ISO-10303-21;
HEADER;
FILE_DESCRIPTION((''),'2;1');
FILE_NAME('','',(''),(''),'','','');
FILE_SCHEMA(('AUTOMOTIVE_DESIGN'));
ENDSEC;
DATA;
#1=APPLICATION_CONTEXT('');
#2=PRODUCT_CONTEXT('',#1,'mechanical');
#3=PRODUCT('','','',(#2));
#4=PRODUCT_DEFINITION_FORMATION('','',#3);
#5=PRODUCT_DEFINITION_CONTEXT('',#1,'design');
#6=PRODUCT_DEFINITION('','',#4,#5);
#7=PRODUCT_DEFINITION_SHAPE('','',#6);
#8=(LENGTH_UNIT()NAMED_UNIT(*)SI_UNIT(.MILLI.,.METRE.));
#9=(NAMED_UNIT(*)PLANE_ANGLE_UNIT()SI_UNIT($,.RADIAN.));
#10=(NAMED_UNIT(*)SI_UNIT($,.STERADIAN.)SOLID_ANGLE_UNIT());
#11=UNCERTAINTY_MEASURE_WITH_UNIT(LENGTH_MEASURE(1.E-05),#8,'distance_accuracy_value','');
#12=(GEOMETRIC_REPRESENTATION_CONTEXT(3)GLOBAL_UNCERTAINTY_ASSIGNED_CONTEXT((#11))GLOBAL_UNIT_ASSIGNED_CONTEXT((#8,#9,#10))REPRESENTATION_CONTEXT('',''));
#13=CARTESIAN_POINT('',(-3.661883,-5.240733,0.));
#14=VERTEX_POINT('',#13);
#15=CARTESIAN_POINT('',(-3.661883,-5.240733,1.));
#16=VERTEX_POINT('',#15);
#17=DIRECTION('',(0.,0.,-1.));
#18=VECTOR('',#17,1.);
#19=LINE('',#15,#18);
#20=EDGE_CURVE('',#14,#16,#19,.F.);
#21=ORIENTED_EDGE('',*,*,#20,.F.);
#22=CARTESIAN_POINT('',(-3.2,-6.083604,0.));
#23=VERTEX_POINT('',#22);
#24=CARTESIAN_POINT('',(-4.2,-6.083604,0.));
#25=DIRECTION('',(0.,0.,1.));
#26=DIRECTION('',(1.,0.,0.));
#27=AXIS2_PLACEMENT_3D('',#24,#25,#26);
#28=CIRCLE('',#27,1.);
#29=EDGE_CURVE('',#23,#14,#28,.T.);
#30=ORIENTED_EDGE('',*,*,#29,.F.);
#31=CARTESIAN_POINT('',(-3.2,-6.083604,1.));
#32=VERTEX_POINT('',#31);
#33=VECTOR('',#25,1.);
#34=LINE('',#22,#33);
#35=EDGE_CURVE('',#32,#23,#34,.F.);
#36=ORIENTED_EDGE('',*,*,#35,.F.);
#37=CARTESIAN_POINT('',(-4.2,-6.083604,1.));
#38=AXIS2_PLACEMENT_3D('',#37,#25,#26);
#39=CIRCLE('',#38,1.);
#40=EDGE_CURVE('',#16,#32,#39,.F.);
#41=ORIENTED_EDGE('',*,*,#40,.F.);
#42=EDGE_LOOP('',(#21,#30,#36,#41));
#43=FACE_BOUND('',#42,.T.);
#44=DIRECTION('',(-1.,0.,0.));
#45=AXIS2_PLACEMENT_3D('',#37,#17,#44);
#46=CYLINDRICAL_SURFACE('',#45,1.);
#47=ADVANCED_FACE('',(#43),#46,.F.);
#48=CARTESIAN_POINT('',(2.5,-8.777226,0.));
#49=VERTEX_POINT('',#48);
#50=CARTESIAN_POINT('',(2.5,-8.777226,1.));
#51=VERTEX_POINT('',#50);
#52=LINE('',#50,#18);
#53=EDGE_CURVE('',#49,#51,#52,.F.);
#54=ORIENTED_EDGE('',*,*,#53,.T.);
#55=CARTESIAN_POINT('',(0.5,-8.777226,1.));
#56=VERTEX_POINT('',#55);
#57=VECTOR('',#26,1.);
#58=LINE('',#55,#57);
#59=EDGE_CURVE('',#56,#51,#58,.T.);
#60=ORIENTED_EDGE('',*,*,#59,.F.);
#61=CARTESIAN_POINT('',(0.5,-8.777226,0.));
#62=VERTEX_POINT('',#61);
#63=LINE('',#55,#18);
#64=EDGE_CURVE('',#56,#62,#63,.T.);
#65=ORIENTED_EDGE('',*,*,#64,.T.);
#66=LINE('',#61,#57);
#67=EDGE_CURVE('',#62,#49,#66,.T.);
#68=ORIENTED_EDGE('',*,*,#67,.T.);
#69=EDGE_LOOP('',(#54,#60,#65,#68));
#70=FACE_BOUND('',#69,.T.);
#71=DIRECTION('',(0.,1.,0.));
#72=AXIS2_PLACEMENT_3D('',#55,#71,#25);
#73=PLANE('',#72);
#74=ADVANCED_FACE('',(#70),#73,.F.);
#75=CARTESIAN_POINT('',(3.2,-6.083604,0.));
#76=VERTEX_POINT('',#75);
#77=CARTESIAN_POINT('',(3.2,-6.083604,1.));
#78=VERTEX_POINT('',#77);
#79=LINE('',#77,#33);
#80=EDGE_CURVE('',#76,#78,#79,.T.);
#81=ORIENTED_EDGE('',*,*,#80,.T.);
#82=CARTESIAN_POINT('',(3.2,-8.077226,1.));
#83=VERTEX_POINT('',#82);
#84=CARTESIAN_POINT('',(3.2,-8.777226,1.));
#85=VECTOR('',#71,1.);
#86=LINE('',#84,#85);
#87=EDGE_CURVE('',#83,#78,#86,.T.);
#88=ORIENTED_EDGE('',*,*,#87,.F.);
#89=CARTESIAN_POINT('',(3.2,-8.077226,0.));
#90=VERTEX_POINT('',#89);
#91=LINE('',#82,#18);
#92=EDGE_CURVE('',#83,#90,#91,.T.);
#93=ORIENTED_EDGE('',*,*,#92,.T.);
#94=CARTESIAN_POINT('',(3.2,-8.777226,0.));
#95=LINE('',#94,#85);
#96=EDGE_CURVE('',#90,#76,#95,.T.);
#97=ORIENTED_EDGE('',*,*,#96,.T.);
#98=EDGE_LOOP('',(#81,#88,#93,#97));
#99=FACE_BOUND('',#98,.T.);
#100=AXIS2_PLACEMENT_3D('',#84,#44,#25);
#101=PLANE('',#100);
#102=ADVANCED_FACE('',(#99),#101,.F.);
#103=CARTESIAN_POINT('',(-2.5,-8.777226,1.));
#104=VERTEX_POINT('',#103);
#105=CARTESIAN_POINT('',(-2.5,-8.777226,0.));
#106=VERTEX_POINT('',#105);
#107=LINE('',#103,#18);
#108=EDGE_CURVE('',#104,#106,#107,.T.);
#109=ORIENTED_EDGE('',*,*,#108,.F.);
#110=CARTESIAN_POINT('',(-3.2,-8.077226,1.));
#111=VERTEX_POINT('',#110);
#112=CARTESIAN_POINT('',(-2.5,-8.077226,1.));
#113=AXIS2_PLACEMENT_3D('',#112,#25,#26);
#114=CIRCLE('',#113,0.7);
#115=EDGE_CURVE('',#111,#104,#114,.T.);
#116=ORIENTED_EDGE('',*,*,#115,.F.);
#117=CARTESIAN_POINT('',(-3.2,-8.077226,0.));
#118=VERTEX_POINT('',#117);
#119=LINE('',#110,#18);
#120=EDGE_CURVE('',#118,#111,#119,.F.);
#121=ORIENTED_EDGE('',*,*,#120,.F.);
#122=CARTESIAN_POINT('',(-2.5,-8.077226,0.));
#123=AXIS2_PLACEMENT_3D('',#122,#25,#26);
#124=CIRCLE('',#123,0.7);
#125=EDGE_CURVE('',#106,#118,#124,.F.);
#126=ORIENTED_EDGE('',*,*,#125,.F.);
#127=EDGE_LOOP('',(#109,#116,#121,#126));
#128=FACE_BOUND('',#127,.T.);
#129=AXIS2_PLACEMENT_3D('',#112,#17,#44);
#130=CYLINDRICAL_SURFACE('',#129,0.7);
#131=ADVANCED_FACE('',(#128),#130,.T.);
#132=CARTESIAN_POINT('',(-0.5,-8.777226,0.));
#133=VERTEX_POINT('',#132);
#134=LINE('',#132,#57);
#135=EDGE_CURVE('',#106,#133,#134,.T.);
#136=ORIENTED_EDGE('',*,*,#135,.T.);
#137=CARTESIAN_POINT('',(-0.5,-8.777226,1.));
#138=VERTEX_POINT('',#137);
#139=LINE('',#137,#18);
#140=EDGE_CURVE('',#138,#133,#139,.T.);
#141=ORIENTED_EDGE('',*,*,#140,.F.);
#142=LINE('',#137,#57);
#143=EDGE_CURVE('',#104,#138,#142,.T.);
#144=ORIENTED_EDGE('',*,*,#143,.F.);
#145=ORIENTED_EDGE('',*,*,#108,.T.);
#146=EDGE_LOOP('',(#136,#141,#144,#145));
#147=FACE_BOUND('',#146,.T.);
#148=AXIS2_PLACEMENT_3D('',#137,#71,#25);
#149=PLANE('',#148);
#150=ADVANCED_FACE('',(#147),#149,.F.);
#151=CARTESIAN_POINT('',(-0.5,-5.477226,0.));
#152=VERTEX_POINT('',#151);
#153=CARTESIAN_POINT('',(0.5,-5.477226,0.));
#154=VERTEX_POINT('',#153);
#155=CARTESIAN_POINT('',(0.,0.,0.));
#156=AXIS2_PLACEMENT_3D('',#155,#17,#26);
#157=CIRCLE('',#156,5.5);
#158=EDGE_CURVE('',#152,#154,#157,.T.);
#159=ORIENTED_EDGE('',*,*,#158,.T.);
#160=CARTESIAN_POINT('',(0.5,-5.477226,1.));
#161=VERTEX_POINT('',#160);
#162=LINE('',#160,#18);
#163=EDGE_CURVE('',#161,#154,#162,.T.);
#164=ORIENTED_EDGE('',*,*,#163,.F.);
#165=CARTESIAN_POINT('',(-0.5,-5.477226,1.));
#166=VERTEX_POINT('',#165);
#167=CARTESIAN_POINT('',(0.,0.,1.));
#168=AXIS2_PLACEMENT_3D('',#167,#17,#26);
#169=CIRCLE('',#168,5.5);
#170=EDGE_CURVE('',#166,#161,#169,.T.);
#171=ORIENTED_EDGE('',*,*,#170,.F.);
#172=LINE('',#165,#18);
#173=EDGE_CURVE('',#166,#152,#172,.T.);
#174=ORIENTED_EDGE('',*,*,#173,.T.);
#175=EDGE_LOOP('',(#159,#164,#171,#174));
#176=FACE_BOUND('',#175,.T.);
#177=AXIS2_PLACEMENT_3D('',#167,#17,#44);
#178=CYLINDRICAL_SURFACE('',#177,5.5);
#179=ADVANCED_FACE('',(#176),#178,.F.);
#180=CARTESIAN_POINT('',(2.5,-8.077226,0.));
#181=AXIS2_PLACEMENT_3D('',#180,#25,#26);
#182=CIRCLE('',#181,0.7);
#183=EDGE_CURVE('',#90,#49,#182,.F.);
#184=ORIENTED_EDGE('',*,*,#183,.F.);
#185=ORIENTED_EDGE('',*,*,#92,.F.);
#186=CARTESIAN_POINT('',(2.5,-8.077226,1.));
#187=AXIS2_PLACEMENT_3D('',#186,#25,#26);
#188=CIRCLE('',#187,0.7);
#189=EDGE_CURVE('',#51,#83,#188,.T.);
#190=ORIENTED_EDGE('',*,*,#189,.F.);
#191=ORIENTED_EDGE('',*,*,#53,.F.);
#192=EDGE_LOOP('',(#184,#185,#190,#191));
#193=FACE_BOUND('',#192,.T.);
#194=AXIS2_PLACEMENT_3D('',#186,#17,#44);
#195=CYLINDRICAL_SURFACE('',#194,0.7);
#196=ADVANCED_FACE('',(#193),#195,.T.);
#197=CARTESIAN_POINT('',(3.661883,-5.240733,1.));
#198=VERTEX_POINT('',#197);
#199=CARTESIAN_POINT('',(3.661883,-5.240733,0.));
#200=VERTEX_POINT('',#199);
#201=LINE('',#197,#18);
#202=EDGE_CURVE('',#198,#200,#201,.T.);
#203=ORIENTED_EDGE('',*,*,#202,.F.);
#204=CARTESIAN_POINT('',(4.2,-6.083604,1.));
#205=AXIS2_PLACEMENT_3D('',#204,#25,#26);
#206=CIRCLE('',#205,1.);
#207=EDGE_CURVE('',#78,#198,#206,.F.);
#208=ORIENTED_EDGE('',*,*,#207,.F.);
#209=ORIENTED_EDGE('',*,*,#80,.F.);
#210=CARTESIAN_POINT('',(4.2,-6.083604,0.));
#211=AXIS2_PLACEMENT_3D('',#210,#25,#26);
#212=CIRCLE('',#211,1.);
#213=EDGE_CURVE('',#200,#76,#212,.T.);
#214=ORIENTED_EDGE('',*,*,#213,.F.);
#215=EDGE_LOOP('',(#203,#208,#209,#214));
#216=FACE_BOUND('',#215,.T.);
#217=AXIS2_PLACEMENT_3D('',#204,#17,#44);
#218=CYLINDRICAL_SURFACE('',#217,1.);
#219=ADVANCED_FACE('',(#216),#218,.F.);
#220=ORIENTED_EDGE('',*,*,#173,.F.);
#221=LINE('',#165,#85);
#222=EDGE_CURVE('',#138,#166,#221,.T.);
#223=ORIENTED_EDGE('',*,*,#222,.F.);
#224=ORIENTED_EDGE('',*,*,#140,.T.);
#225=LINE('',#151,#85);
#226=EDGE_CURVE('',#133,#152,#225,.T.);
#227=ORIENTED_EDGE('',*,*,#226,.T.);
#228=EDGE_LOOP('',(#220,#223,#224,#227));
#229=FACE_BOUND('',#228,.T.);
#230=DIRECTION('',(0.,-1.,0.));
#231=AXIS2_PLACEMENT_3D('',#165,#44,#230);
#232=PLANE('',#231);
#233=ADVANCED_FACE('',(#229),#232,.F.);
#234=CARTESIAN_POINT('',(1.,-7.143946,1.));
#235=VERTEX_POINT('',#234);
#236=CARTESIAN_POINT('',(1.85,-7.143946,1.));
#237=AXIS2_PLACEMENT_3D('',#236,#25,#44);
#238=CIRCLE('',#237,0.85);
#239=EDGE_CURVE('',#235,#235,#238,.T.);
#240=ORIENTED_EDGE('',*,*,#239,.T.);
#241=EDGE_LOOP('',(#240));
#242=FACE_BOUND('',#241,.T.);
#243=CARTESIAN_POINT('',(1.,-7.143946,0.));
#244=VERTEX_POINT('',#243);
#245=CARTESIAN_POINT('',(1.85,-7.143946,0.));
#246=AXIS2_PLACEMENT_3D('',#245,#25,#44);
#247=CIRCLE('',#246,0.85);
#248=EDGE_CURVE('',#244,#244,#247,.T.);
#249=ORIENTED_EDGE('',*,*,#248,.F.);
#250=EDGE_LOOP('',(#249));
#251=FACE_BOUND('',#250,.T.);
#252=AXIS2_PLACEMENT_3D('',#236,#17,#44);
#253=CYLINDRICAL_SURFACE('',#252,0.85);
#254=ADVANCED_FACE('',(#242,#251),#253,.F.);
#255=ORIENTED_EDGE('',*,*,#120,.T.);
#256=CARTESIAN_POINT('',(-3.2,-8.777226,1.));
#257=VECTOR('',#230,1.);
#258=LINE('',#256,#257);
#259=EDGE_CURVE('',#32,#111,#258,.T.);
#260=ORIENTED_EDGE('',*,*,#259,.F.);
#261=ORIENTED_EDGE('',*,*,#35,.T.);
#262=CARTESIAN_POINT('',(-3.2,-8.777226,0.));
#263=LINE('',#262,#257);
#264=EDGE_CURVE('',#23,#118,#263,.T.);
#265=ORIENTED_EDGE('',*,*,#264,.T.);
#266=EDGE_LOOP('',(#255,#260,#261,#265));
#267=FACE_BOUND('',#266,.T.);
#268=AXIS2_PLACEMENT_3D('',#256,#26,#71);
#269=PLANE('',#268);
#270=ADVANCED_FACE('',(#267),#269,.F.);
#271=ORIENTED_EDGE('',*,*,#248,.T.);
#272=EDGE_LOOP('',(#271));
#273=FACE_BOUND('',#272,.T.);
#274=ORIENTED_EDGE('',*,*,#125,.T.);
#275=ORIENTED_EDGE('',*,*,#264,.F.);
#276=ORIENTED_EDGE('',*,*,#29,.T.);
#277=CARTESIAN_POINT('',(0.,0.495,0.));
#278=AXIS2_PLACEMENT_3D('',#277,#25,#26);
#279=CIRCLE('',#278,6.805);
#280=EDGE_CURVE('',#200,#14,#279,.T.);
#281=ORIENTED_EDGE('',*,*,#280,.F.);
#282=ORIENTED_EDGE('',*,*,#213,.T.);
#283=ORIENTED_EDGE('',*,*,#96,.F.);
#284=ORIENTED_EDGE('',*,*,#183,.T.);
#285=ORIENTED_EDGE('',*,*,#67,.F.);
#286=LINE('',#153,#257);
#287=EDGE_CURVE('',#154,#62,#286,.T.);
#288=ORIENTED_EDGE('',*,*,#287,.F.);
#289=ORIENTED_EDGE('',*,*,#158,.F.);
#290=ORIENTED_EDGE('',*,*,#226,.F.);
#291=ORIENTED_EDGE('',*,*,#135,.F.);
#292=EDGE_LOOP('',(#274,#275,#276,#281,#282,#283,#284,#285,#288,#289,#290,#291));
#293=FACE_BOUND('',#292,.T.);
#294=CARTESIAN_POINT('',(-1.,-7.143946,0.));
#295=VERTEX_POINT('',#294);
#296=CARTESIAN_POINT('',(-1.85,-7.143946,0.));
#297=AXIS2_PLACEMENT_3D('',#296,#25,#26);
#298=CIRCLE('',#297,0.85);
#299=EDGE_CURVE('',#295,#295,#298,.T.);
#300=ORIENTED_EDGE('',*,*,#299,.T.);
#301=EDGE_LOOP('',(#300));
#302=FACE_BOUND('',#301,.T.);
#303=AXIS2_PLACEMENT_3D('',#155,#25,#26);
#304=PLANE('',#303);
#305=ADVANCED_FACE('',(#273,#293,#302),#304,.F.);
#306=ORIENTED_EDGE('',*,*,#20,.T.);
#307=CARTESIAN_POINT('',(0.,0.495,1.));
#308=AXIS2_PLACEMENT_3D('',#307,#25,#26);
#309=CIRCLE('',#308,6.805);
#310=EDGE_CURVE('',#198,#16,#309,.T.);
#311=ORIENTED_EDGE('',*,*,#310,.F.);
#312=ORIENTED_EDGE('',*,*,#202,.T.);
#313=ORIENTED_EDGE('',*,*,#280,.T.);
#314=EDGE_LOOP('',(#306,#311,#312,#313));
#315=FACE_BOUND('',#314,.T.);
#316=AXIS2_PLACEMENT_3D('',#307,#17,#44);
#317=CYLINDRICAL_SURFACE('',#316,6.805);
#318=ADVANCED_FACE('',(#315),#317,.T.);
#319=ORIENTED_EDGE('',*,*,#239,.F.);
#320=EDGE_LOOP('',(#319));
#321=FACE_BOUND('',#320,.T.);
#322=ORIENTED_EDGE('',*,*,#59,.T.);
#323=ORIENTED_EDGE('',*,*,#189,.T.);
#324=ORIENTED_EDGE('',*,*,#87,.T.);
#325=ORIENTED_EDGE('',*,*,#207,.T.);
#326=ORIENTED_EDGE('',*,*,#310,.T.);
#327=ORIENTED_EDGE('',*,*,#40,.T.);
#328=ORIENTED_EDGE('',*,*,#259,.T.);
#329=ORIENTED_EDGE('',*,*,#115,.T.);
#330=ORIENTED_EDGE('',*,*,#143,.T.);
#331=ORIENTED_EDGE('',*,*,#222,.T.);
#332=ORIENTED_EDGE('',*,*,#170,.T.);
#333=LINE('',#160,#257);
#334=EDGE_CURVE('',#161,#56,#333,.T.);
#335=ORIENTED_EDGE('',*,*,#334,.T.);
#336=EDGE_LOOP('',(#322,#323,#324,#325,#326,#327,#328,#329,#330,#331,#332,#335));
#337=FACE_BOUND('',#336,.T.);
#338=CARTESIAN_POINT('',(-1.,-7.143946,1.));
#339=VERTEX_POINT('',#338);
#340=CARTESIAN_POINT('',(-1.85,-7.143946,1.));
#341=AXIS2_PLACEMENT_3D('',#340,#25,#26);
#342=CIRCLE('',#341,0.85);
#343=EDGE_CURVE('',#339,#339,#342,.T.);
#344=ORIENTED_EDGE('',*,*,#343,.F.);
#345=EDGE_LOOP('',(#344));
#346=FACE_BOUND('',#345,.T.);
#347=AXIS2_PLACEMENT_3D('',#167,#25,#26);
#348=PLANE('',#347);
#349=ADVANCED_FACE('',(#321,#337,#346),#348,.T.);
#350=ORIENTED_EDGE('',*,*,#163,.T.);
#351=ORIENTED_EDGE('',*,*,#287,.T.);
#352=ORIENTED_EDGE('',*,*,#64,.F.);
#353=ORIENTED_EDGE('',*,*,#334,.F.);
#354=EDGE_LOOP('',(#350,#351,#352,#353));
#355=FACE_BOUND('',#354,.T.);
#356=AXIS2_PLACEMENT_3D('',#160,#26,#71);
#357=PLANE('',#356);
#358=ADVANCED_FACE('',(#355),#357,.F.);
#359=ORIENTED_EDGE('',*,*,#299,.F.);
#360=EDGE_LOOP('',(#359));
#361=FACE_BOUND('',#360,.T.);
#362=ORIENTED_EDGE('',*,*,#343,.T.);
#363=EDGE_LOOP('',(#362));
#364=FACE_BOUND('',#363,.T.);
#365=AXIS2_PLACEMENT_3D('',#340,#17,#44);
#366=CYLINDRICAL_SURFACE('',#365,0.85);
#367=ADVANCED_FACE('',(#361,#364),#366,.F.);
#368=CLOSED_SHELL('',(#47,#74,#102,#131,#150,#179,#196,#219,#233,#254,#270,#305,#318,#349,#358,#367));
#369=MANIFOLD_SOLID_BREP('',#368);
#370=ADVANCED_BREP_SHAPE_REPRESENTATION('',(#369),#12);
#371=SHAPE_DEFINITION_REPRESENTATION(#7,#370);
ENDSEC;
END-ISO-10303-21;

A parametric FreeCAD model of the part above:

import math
import FreeCAD as App
import Part
import Sketcher
from FreeCAD import Vector
Q = App.Units.Quantity


def edges_at(feature, points):
    """Names of the edges that pass closest to the given points."""
    edges = feature.Shape.Edges
    near = lambda p: min(range(len(edges)), key=lambda i: edges[i].distToShape(Part.Vertex(*p))[0])
    return sorted({f"Edge{near(p) + 1}" for p in points})

doc = App.newDocument("Part")
body = doc.addObject("PartDesign::Body", "Body")

sketch1 = doc.addObject("Sketcher::SketchObject", "Sketch")
body.addObject(sketch1)
sketch1.AttachmentSupport = (doc.XY_Plane, [""])
sketch1.MapMode = "FlatFace"
sketch1.addGeometry([
    Part.LineSegment(Vector(-0.5, -8.8, 0), Vector(-0.5, -5.5, 0)),
    Part.ArcOfCircle(Part.Circle(Vector(0, 0, 0), Vector(0, 0, 1), 5.5), math.radians(-85), math.radians(265)),
    Part.LineSegment(Vector(0.5, -5.5, 0), Vector(0.5, -8.8, 0)),
    Part.LineSegment(Vector(0.5, -8.8, 0), Vector(3.2, -8.8, 0)),
    Part.LineSegment(Vector(3.2, -8.8, 0), Vector(3.2, -5.5, 0)),
    Part.ArcOfCircle(Part.Circle(Vector(0, 0.5, 0), Vector(0, 0, 1), 6.8), math.radians(-62), math.radians(242)),
    Part.LineSegment(Vector(-3.2, -5.5, 0), Vector(-3.2, -8.8, 0)),
    Part.LineSegment(Vector(-3.2, -8.8, 0), Vector(-0.5, -8.8, 0)),
    Part.Circle(Vector(1.9, -7.1, 0), Vector(0, 0, 1), 0.8),
    Part.Circle(Vector(-1.9, -7.1, 0), Vector(0, 0, 1), 0.8),
], False)
sketch1.addConstraint([
    Sketcher.Constraint("Coincident", 0, 2, 1, 2),
    Sketcher.Constraint("Coincident", 1, 1, 2, 1),
    Sketcher.Constraint("Coincident", 2, 2, 3, 1),
    Sketcher.Constraint("Coincident", 3, 2, 4, 1),
    Sketcher.Constraint("Coincident", 4, 2, 5, 1),
    Sketcher.Constraint("Coincident", 5, 2, 6, 1),
    Sketcher.Constraint("Coincident", 6, 2, 7, 1),
    Sketcher.Constraint("Coincident", 7, 2, 0, 1),
    Sketcher.Constraint("Vertical", 0),
    Sketcher.Constraint("Vertical", 2),
    Sketcher.Constraint("Horizontal", 3),
    Sketcher.Constraint("Vertical", 4),
    Sketcher.Constraint("Vertical", 6),
    Sketcher.Constraint("Horizontal", 7),
    Sketcher.Constraint("Coincident", 1, 3, -1, 1),
    Sketcher.Constraint("Equal", 8, 9),
    Sketcher.Constraint("Symmetric", 8, 3, 9, 3, -2),
    Sketcher.Constraint("Symmetric", 4, 2, 5, 2, -2),
    Sketcher.Constraint("Symmetric", 2, 2, 7, 2, -2),
    Sketcher.Constraint("Diameter", 8, Q("1.7 mm")),
    Sketcher.Constraint("Radius", 1, Q("5.5 mm")),
    Sketcher.Constraint("DistanceX", 3, 1, 3, 2, Q("2.7 mm")),
    Sketcher.Constraint("DistanceY", 0, 1, 0, 2, Q("3.3 mm")),
    Sketcher.Constraint("Radius", 5, Q("6.805 mm")),
    Sketcher.Constraint("DistanceX", 0, 2, 1, 1, Q("1 mm")),
    Sketcher.Constraint("DistanceX", 9, 3, 8, 3, Q("3.7 mm")),
    Sketcher.Constraint("DistanceY", -1, 1, 5, 3, Q("0.495 mm")),
    Sketcher.Constraint("DistanceY", 9, 3, 0, 2, Q("1.66672 mm")),
])
pad1 = doc.addObject("PartDesign::Pad", "Pad")
body.addObject(pad1)
pad1.Profile = sketch1
pad1.Length = 1
doc.recompute()

fillet = doc.addObject("PartDesign::Fillet", "Fillet")
body.addObject(fillet)
fillet.Base = (pad1, edges_at(pad1, [(-3.2, -5.511, 0.5), (3.2, -5.511, 0.5)]))
fillet.Radius = 1
doc.recompute()

fillet2 = doc.addObject("PartDesign::Fillet", "Fillet001")
body.addObject(fillet2)
fillet2.Base = (fillet, edges_at(fillet, [(-3.2, -8.777, 0.5), (3.2, -8.777, 0.5)]))
fillet2.Radius = 0.7

doc.recompute()
